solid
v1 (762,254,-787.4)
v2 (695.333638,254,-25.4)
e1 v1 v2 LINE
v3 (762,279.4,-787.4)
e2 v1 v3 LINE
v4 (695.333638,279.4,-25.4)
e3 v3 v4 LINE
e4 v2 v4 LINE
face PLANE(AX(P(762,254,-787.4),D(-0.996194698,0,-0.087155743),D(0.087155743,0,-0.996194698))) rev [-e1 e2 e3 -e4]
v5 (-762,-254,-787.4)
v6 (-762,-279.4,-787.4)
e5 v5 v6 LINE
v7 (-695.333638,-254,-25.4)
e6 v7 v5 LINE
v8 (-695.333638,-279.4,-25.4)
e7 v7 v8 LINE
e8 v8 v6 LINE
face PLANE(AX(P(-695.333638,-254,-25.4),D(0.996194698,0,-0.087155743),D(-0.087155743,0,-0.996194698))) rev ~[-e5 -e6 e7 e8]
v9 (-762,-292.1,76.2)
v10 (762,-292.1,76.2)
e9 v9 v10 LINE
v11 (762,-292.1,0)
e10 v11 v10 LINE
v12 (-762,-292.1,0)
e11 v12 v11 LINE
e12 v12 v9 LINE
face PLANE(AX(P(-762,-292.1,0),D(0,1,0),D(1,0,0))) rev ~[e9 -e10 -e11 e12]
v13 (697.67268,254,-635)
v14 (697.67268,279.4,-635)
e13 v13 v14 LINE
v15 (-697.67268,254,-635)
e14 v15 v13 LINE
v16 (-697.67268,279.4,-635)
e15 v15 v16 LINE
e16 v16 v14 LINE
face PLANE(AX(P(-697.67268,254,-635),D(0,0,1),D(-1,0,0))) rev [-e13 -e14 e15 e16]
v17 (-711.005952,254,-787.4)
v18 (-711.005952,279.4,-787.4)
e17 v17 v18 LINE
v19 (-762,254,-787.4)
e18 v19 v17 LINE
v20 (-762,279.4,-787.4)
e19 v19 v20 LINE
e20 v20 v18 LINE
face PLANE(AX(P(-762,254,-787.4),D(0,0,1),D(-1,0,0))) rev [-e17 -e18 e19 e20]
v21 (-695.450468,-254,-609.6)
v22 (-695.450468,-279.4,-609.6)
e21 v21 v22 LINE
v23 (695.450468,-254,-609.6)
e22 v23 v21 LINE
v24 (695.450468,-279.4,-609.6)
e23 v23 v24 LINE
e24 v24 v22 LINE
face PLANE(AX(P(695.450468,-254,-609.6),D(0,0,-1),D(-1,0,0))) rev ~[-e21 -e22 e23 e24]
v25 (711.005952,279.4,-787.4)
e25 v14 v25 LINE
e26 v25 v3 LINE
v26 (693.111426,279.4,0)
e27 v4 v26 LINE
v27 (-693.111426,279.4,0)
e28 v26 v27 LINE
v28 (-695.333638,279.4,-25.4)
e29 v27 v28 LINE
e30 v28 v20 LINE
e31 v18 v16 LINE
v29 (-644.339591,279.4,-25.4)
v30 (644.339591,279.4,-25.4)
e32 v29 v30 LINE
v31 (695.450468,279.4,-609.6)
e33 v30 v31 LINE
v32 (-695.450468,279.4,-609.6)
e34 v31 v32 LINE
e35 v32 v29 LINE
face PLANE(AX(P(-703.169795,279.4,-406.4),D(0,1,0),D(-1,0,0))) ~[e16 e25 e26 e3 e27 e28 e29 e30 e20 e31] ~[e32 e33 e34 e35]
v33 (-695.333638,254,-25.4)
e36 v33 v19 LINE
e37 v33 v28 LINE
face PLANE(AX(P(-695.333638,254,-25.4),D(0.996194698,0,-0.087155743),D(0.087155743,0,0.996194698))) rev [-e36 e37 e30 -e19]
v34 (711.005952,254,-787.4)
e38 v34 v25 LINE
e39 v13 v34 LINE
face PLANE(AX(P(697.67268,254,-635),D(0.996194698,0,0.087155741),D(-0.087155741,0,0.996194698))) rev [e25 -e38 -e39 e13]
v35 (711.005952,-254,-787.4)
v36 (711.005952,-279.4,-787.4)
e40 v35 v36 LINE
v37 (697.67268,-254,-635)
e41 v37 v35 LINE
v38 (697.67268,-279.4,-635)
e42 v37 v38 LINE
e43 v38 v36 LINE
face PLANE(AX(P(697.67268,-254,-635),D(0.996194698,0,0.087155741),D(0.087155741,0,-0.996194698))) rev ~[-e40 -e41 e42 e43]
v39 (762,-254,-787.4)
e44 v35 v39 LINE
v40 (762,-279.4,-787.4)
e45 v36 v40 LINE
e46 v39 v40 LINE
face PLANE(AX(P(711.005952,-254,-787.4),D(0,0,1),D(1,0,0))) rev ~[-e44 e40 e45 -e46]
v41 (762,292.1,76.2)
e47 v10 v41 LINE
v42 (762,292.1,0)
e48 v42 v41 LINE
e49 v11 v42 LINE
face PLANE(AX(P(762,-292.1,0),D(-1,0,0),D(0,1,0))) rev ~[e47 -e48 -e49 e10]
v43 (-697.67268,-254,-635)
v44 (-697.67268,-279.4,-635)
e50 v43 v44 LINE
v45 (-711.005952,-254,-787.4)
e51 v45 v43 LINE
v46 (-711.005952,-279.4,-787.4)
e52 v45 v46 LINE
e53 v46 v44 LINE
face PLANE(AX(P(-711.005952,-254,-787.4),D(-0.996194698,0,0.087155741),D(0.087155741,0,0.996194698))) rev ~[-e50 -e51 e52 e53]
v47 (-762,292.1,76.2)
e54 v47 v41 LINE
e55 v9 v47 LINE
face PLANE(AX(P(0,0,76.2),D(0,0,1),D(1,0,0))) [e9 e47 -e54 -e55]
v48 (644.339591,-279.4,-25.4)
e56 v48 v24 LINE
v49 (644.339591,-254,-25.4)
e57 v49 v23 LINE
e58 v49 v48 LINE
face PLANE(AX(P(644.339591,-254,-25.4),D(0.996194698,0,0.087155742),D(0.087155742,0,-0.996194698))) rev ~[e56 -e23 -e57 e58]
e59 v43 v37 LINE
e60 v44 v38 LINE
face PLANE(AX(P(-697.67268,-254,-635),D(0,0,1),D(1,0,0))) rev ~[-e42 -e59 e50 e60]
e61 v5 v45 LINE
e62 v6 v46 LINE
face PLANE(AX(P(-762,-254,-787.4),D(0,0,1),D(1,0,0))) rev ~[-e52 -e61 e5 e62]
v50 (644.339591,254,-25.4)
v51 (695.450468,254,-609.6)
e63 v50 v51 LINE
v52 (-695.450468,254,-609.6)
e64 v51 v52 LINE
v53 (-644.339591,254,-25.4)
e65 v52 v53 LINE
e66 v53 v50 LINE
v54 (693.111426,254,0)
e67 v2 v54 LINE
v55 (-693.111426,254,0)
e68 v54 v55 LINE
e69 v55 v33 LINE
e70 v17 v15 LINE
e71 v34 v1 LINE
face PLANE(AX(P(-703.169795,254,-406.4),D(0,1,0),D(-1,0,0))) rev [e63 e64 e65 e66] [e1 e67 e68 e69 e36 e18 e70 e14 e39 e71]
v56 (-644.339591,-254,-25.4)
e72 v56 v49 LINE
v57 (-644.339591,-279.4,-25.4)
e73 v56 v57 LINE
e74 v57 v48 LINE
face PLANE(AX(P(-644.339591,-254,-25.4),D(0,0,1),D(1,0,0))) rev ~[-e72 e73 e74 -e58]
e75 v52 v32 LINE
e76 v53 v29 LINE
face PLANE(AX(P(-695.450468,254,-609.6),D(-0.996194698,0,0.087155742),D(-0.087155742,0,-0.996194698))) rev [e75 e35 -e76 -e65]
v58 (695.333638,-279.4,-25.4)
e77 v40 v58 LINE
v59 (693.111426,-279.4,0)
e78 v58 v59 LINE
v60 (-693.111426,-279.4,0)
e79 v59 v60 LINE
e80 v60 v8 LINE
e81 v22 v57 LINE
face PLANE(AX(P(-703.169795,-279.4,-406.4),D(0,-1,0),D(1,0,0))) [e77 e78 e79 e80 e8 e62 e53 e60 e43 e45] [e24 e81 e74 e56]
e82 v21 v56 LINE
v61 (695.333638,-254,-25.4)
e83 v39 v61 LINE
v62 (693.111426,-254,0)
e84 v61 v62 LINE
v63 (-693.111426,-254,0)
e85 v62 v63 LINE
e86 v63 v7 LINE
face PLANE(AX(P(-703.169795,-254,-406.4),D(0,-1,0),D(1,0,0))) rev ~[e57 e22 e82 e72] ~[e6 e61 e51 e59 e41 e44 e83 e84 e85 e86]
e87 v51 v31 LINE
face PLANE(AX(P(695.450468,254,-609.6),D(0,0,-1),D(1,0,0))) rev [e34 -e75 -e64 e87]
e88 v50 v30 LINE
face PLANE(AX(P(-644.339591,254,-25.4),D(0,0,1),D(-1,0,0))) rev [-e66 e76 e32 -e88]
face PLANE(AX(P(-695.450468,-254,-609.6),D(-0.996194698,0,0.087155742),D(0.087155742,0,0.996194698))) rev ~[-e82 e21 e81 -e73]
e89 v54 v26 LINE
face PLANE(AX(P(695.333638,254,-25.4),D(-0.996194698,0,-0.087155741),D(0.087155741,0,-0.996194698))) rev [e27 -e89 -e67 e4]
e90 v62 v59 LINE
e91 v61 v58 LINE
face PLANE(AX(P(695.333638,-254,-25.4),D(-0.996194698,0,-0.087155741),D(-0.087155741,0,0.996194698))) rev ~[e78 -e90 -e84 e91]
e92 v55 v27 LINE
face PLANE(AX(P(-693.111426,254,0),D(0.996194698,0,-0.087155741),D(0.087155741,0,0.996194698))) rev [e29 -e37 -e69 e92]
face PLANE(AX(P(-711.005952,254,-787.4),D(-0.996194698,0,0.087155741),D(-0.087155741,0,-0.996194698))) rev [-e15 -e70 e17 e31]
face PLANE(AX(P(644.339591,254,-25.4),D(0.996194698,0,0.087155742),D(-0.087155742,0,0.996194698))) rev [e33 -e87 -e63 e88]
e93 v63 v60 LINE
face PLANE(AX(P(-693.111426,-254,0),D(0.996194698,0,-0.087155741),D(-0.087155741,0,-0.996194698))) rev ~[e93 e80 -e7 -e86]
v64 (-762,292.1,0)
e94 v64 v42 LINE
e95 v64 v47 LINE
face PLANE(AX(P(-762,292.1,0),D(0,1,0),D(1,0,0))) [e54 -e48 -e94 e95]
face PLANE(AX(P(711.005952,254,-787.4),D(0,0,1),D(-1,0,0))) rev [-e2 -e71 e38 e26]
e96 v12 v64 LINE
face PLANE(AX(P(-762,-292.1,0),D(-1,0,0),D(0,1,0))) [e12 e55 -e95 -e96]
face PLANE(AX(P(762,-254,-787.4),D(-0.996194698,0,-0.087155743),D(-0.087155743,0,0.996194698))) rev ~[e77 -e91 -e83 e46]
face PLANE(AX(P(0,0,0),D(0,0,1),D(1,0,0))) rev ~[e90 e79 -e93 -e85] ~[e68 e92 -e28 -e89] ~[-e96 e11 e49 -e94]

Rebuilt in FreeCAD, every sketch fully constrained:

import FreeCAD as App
import Part
import Sketcher
Q = App.Units.Quantity

doc = App.newDocument("Part")
body = doc.addObject("PartDesign::Body", "Body")

# Sketch on XY plane
sketch1 = body.newObject("Sketcher::SketchObject", "Sketch")
sketch1.AttachmentSupport = (doc.getObject("XY_Plane"), [""])
sketch1.MapMode = "FlatFace"
sketch1.addGeometry(Part.LineSegment(App.Vector(-762, 292, 0), App.Vector(-762, -292, 0)), False)
sketch1.addGeometry(Part.LineSegment(App.Vector(-762, -292, 0), App.Vector(762, -292, 0)), False)
sketch1.addGeometry(Part.LineSegment(App.Vector(762, -292, 0), App.Vector(762, 292, 0)), False)
sketch1.addGeometry(Part.LineSegment(App.Vector(762, 292, 0), App.Vector(-762, 292, 0)), False)
sketch1.addConstraint(Sketcher.Constraint("Coincident", 0, 2, 1, 1))
sketch1.addConstraint(Sketcher.Constraint("Coincident", 1, 2, 2, 1))
sketch1.addConstraint(Sketcher.Constraint("Coincident", 2, 2, 3, 1))
sketch1.addConstraint(Sketcher.Constraint("Coincident", 3, 2, 0, 1))
sketch1.addConstraint(Sketcher.Constraint("Vertical", 0))
sketch1.addConstraint(Sketcher.Constraint("Horizontal", 1))
sketch1.addConstraint(Sketcher.Constraint("Vertical", 2))
sketch1.addConstraint(Sketcher.Constraint("Horizontal", 3))
sketch1.addConstraint(Sketcher.Constraint("Symmetric", 0, 2, 2, 2, -1, 1))
sketch1.addConstraint(Sketcher.Constraint("DistanceX", 1, 1, 1, 2, Q("60 in")))
sketch1.addConstraint(Sketcher.Constraint("DistanceY", 0, 2, 0, 1, Q("23 in")))
pad1 = body.newObject("PartDesign::Pad", "Pad")
pad1.Profile = sketch1
pad1.Length = Q("3 in")

# Sketch on XZ plane
sketch2 = body.newObject("Sketcher::SketchObject", "Sketch001")
sketch2.AttachmentSupport = (doc.getObject("XZ_Plane"), [""])
sketch2.MapMode = "FlatFace"
sketch2.AttachmentOffset = App.Placement(App.Vector(0, 0, 10 * 25.4), App.Rotation())
sketch2.addGeometry(Part.LineSegment(App.Vector(-695, -25, 0), App.Vector(-762, -787, 0)), False)
sketch2.addGeometry(Part.LineSegment(App.Vector(-762, -787, 0), App.Vector(-711, -787, 0)), False)
sketch2.addGeometry(Part.LineSegment(App.Vector(-711, -787, 0), App.Vector(-698, -635, 0)), False)
sketch2.addGeometry(Part.LineSegment(App.Vector(-698, -635, 0), App.Vector(698, -635, 0)), False)
sketch2.addGeometry(Part.LineSegment(App.Vector(698, -635, 0), App.Vector(711, -787, 0)), False)
sketch2.addGeometry(Part.LineSegment(App.Vector(711, -787, 0), App.Vector(762, -787, 0)), False)
sketch2.addGeometry(Part.LineSegment(App.Vector(762, -787, 0), App.Vector(695, -25, 0)), False)
sketch2.addGeometry(Part.LineSegment(App.Vector(695, -25, 0), App.Vector(693, 0, 0)), False)
sketch2.addGeometry(Part.LineSegment(App.Vector(693, 0, 0), App.Vector(-693, 0, 0)), False)
sketch2.addGeometry(Part.LineSegment(App.Vector(-693, 0, 0), App.Vector(-695, -25, 0)), False)
sketch2.addGeometry(Part.LineSegment(App.Vector(-695, -610, 0), App.Vector(-644, -25, 0)), False)
sketch2.addGeometry(Part.LineSegment(App.Vector(-644, -25, 0), App.Vector(644, -25, 0)), False)
sketch2.addGeometry(Part.LineSegment(App.Vector(644, -25, 0), App.Vector(695, -610, 0)), False)
sketch2.addGeometry(Part.LineSegment(App.Vector(695, -610, 0), App.Vector(-695, -610, 0)), False)
sketch2.addConstraint(Sketcher.Constraint("Coincident", 0, 2, 1, 1))
sketch2.addConstraint(Sketcher.Constraint("Coincident", 1, 2, 2, 1))
sketch2.addConstraint(Sketcher.Constraint("Coincident", 2, 2, 3, 1))
sketch2.addConstraint(Sketcher.Constraint("Coincident", 3, 2, 4, 1))
sketch2.addConstraint(Sketcher.Constraint("Coincident", 4, 2, 5, 1))
sketch2.addConstraint(Sketcher.Constraint("Coincident", 5, 2, 6, 1))
sketch2.addConstraint(Sketcher.Constraint("Coincident", 6, 2, 7, 1))
sketch2.addConstraint(Sketcher.Constraint("Coincident", 7, 2, 8, 1))
sketch2.addConstraint(Sketcher.Constraint("Coincident", 8, 2, 9, 1))
sketch2.addConstraint(Sketcher.Constraint("Coincident", 9, 2, 0, 1))
sketch2.addConstraint(Sketcher.Constraint("Coincident", 10, 2, 11, 1))
sketch2.addConstraint(Sketcher.Constraint("Coincident", 11, 2, 12, 1))
sketch2.addConstraint(Sketcher.Constraint("Coincident", 12, 2, 13, 1))
sketch2.addConstraint(Sketcher.Constraint("Coincident", 13, 2, 10, 1))
sketch2.addConstraint(Sketcher.Constraint("Horizontal", 1))
sketch2.addConstraint(Sketcher.Constraint("Horizontal", 3))
sketch2.addConstraint(Sketcher.Constraint("Horizontal", 5))
sketch2.addConstraint(Sketcher.Constraint("Horizontal", 8))
sketch2.addConstraint(Sketcher.Constraint("Horizontal", 11))
sketch2.addConstraint(Sketcher.Constraint("Horizontal", 13))
sketch2.addConstraint(Sketcher.Constraint("Symmetric", 7, 2, 8, 2, -1, 1))
sketch2.addConstraint(Sketcher.Constraint("Symmetric", 1, 2, 4, 2, -2))
sketch2.addConstraint(Sketcher.Constraint("Symmetric", 6, 2, 9, 2, -2))
sketch2.addConstraint(Sketcher.Constraint("Parallel", 0, 2))
sketch2.addConstraint(Sketcher.Constraint("Parallel", 4, 6))
sketch2.addConstraint(Sketcher.Constraint("Parallel", 6, 7))
sketch2.addConstraint(Sketcher.Constraint("Parallel", 2, 9))
sketch2.addConstraint(Sketcher.Constraint("Parallel", 9, 10))
sketch2.addConstraint(Sketcher.Constraint("Parallel", 7, 12))
sketch2.addConstraint(Sketcher.Constraint("Horizontal", 9, 2, 10, 2))
sketch2.addConstraint(Sketcher.Constraint("DistanceX", 0, 2, -1, 1, Q("30 in")))
sketch2.addConstraint(Sketcher.Constraint("DistanceY", 0, 2, -1, 1, Q("31 in")))
sketch2.addConstraint(Sketcher.Constraint("DistanceY", 2, 2, -1, 1, Q("25 in")))
sketch2.addConstraint(Sketcher.Constraint("DistanceY", 6, 2, -1, 1, Q("1 in")))
sketch2.addConstraint(Sketcher.Constraint("DistanceY", 12, 2, -1, 1, Q("24 in")))
sketch2.addConstraint(Sketcher.Constraint("Angle", 0, Q("-95 deg")))
sketch2.addConstraint(Sketcher.Constraint("DistanceX", 1, 1, 1, 2, 50.994048))
sketch2.addConstraint(Sketcher.Constraint("DistanceX", 11, 1, 11, 2, 1288.679182))
sketch2.addConstraint(Sketcher.Constraint("DistanceX", 10, 2, -1, 1, 644.339591))
pad2 = body.newObject("PartDesign::Pad", "Pad001")
pad2.Profile = sketch2
pad2.Length = Q("1 in")
body2 = doc.addObject("PartDesign::Body", "Body001")
doc.recompute()

body2.BaseFeature = body
doc.recompute()

mirroring = doc.addObject("Part::Mirroring", "Mirroring")
mirroring.Source = body
mirroring.Base = App.Vector(0, 0, 0)
mirroring.Normal = App.Vector(0, -1, 0)
body3 = doc.addObject("PartDesign::Body", "Body002")
body3.BaseFeature = mirroring
boolean = body2.newObject("PartDesign::Boolean", "Boolean")
boolean.Type = "Fuse"
boolean.addObjects([body3])
doc.recompute()
mirroring.Visibility = False

doc.recompute()
